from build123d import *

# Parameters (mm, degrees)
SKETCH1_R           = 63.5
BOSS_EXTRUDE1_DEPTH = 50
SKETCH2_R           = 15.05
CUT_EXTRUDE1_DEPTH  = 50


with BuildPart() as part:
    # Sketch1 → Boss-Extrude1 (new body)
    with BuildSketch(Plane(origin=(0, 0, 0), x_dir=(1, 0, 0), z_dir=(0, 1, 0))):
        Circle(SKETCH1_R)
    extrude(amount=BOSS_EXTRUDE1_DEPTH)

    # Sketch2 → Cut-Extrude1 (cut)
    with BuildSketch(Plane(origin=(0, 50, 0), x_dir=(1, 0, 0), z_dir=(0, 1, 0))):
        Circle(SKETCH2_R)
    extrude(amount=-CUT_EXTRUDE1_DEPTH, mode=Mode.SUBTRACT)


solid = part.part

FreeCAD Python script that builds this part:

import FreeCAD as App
import Part
import Sketcher

V = App.Vector
Q = App.Units.Quantity

doc = App.newDocument("Part")
body = doc.addObject("PartDesign::Body", "Body")

# Sketch on XZ plane
sketch1 = body.newObject("Sketcher::SketchObject", "Sketch")
sketch1.AttachmentSupport = (doc.getObject("XZ_Plane"), [""])
sketch1.MapMode = "FlatFace"
sketch1.addGeometry(Part.Circle(V(0, 0, 0), V(0, 0, 1), 64), False)
sketch1.addConstraint([
    Sketcher.Constraint("Coincident", 0, 3, -1, 1),
    Sketcher.Constraint("Diameter", 0, Q("127 mm")),
])
pad1 = body.newObject("PartDesign::Pad", "Pad")
pad1.Profile = sketch1
pad1.Length = 50
pad1.Reversed = True

# Sketch on XZ plane
sketch2 = body.newObject("Sketcher::SketchObject", "Sketch001")
sketch2.AttachmentSupport = (doc.getObject("XZ_Plane"), [""])
sketch2.MapMode = "FlatFace"
sketch2.AttachmentOffset = App.Placement(V(0, 0, -50), App.Rotation())
sketch2.addGeometry(Part.Circle(V(0, 0, 0), V(0, 0, 1), 15), False)
sketch2.addConstraint([
    Sketcher.Constraint("Coincident", 0, 3, -1, 1),
    Sketcher.Constraint("Diameter", 0, Q("30.1 mm")),
])
pocket1 = body.newObject("PartDesign::Pocket", "Pocket")
pocket1.Profile = sketch2
pocket1.Length = 50
pocket1.Reversed = True

doc.recompute()
